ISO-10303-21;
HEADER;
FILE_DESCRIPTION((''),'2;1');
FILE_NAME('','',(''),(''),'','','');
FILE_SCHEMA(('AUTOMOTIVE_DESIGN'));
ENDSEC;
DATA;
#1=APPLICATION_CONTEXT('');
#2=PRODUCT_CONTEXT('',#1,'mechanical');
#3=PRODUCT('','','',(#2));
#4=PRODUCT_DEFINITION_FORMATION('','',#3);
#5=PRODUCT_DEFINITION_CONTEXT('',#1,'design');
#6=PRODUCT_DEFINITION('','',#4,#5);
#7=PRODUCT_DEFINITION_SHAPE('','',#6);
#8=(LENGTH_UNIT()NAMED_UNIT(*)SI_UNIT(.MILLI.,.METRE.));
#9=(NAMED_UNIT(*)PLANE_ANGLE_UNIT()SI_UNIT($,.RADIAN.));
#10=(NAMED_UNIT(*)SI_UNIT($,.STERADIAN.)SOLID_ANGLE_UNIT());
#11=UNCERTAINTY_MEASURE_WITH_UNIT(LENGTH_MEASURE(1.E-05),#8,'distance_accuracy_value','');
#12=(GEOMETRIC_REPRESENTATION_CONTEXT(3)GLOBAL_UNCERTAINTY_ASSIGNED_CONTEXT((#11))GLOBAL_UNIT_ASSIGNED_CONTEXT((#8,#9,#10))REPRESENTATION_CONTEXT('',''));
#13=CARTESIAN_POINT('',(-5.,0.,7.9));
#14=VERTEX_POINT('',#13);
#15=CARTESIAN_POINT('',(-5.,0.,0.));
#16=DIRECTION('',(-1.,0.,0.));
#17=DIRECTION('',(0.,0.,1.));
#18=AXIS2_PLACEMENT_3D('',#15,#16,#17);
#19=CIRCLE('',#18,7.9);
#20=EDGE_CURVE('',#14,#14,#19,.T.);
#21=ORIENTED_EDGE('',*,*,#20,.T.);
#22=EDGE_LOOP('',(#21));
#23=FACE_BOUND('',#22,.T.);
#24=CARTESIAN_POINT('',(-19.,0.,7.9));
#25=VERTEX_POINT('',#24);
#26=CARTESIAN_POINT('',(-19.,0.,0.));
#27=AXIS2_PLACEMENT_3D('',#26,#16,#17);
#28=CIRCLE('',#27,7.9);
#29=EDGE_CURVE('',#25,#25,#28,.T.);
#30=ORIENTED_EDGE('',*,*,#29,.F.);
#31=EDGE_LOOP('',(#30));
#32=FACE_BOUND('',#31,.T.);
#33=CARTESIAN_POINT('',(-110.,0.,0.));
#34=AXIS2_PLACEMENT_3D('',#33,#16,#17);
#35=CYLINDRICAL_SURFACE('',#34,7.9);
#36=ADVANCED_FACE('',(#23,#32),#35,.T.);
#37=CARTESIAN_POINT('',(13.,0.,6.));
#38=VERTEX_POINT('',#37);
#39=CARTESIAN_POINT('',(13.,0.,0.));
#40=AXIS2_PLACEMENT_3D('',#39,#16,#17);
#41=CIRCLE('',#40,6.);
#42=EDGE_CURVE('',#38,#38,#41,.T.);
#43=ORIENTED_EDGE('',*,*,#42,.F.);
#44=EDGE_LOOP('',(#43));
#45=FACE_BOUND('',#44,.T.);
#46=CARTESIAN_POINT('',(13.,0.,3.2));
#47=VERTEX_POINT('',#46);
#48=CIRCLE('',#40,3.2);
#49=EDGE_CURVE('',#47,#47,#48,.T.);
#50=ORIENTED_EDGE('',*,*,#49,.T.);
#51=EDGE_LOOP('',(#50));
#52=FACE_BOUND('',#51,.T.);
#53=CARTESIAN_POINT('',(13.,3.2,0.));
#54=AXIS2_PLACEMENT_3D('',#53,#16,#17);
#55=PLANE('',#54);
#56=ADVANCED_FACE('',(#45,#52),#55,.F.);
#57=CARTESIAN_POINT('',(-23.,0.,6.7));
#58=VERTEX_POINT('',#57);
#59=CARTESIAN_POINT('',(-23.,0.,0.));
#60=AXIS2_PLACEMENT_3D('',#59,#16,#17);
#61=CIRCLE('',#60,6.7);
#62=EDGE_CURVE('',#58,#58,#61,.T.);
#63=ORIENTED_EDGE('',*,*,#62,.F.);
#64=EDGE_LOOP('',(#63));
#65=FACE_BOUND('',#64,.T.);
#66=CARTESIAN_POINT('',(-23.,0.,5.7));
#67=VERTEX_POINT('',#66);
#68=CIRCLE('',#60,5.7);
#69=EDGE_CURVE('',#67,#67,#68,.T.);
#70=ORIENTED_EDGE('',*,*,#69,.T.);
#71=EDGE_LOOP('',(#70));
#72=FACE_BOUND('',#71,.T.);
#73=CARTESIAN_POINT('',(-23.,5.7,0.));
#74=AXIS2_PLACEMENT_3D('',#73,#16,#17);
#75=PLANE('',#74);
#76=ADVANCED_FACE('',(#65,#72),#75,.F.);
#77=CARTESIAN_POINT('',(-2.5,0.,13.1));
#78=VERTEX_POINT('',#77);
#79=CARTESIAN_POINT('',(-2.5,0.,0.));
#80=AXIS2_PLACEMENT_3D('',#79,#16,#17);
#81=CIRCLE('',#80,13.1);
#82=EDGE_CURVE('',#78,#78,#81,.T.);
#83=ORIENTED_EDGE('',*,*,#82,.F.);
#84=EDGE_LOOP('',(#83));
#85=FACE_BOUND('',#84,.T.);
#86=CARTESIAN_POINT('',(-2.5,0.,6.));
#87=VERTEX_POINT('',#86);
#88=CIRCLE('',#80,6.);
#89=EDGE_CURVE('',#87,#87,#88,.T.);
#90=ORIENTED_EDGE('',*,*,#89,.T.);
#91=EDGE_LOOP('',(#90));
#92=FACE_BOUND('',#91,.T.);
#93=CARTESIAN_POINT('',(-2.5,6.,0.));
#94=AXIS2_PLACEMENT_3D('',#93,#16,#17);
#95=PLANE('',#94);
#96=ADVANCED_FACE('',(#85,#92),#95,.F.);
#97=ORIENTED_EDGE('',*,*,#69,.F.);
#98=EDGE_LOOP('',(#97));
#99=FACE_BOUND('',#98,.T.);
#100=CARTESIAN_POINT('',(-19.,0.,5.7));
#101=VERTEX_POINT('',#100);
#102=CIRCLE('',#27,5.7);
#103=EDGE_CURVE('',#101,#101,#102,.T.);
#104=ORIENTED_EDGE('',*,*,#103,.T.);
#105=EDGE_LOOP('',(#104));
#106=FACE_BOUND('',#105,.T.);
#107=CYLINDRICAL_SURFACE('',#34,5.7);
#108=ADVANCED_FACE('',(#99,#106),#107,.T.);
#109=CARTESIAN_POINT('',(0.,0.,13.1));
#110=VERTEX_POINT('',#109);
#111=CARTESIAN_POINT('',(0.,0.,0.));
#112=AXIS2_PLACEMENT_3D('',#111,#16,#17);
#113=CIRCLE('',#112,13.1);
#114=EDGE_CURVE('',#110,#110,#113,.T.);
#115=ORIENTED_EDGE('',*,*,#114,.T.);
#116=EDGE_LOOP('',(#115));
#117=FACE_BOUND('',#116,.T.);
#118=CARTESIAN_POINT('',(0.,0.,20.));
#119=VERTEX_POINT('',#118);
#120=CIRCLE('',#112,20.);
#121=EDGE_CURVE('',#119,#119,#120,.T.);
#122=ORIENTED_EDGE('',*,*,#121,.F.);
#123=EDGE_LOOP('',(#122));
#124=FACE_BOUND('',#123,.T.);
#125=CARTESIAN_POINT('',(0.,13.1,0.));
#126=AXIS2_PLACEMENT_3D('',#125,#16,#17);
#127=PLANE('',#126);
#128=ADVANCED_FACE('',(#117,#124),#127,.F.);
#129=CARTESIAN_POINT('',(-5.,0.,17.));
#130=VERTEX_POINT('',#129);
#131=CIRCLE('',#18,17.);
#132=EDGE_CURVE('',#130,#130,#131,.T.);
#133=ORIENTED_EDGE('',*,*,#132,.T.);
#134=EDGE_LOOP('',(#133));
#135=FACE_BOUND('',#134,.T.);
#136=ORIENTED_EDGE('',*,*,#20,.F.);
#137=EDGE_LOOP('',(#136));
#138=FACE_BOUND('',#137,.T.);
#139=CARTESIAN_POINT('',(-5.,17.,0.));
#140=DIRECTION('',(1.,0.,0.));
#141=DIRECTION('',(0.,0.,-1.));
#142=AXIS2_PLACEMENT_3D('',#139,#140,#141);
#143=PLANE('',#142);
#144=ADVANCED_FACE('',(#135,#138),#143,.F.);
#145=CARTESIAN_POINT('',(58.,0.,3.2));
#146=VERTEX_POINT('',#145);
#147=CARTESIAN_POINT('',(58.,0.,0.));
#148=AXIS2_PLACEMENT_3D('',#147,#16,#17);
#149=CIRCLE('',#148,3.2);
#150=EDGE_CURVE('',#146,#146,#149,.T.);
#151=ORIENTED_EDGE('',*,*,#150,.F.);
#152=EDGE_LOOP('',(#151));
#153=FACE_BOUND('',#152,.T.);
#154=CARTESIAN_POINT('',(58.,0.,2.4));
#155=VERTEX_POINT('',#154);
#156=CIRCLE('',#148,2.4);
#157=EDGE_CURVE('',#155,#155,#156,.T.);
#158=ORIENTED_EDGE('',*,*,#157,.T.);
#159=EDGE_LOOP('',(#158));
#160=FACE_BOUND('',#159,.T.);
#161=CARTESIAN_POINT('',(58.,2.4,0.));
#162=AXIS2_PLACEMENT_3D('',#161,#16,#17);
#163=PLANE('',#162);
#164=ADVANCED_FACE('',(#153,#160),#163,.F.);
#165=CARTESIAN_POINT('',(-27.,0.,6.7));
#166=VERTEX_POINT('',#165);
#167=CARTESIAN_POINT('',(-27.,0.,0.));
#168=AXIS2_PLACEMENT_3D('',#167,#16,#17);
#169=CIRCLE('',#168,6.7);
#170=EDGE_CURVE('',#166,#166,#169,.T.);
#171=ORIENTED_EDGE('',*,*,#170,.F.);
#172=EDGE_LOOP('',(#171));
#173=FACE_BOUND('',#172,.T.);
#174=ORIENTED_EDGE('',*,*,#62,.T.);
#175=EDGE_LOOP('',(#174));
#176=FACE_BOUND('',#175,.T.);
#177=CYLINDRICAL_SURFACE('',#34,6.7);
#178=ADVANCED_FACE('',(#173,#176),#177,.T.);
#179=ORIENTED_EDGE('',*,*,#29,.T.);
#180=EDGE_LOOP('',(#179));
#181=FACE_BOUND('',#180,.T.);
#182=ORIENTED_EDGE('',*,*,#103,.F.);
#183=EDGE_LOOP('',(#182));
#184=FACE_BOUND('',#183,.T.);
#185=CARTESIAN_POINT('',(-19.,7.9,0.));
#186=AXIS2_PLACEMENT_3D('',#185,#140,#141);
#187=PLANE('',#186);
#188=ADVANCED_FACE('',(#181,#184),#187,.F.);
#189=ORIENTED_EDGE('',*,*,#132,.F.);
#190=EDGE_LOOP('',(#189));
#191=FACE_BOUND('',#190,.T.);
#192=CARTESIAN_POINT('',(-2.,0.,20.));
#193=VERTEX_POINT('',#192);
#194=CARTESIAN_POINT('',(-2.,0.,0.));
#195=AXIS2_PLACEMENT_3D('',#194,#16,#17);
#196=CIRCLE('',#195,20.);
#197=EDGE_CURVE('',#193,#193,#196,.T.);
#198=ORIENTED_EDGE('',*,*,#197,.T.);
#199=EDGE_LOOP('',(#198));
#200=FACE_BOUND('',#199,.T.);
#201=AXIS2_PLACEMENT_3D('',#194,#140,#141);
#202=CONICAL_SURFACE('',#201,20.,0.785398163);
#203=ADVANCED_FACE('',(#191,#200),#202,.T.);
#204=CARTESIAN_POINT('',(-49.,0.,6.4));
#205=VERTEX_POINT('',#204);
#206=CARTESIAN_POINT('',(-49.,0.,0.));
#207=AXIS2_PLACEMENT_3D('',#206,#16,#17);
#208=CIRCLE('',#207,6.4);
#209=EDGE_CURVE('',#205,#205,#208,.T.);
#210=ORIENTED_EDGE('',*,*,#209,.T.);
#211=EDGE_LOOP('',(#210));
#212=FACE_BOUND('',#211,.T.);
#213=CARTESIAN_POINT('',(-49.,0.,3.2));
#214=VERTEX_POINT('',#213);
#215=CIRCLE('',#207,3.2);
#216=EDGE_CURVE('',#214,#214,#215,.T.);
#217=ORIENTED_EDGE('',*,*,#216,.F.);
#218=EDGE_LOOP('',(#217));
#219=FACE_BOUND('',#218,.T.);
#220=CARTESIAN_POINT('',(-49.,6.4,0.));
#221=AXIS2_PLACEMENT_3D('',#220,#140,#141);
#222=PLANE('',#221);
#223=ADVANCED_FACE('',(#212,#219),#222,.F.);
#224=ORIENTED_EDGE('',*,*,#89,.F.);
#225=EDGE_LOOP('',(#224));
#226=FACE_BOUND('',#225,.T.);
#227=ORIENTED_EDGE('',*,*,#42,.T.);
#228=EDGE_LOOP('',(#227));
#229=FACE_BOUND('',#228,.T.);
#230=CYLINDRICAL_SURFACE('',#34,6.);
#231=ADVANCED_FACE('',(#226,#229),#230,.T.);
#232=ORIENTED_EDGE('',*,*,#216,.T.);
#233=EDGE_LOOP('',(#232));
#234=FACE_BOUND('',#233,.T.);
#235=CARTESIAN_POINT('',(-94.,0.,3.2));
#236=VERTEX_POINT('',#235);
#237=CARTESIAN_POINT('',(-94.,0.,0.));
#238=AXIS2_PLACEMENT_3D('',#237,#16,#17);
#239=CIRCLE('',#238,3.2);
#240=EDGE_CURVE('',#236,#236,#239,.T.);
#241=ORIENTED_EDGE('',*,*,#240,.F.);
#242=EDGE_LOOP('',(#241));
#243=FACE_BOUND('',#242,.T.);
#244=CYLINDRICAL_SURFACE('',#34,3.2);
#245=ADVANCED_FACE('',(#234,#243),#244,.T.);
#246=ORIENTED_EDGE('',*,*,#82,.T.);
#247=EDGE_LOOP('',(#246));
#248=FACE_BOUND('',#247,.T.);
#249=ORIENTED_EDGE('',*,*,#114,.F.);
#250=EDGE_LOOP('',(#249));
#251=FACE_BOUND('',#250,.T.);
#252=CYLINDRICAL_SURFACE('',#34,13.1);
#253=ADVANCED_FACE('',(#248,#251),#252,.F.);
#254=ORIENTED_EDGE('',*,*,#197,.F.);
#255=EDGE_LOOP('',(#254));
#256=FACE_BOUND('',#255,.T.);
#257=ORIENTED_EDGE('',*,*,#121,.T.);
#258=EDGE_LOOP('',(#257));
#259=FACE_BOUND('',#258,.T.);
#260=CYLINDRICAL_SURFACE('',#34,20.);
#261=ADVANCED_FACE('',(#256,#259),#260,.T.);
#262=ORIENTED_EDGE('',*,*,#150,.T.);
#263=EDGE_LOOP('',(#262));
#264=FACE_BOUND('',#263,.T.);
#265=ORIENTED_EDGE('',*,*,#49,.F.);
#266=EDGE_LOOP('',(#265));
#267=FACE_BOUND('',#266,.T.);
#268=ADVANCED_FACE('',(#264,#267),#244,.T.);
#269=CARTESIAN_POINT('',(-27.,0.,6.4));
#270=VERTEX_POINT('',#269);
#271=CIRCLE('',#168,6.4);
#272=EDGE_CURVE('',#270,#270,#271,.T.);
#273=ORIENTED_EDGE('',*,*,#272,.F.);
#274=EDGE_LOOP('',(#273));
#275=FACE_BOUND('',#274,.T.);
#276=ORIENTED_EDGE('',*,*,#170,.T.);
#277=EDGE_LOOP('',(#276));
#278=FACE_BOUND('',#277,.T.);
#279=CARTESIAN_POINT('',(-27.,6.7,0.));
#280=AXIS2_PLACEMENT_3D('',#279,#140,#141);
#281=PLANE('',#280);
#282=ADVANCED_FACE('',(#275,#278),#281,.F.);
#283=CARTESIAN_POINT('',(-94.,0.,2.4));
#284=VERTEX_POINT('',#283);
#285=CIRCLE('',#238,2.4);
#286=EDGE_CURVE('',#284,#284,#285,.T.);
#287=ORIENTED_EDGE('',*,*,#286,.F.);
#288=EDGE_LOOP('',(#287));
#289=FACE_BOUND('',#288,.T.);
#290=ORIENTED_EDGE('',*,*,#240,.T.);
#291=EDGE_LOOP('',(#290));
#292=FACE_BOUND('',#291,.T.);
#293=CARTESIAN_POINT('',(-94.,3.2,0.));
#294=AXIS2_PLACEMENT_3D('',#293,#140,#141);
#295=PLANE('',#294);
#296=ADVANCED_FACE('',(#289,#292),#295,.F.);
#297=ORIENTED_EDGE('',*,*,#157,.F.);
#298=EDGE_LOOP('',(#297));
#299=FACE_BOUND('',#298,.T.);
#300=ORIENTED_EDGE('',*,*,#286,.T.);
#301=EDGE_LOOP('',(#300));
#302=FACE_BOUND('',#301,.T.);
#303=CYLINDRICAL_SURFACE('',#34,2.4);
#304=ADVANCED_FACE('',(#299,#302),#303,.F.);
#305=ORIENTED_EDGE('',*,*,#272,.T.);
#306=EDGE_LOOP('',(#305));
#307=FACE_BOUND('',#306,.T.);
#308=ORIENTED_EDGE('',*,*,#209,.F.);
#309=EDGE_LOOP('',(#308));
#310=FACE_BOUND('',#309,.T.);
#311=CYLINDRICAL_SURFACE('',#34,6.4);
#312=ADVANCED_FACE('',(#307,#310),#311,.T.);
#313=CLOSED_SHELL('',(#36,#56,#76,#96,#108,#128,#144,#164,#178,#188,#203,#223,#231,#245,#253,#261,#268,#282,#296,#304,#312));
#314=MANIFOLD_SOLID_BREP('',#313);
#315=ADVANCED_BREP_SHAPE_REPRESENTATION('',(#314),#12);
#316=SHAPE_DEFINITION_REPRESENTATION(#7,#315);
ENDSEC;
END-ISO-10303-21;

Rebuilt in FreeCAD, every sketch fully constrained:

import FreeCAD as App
import Part
import Sketcher
from FreeCAD import Vector
Q = App.Units.Quantity

doc = App.newDocument("Part")
body = doc.addObject("PartDesign::Body", "Body")

sketch1 = body.newObject("Sketcher::SketchObject", "Sketch")
sketch1.AttachmentSupport = (doc.getObject("XY_Plane"), [""])
sketch1.MapMode = "FlatFace"
sketch1.addGeometry([
    Part.LineSegment(Vector(-94, 2.4, 0), Vector(58, 2.4, 0)),
    Part.LineSegment(Vector(58, 2.4, 0), Vector(58, 3.2, 0)),
    Part.LineSegment(Vector(58, 3.2, 0), Vector(13, 3.2, 0)),
    Part.LineSegment(Vector(13, 3.2, 0), Vector(13, 6, 0)),
    Part.LineSegment(Vector(13, 6, 0), Vector(-2.5, 6, 0)),
    Part.LineSegment(Vector(-2.5, 6, 0), Vector(-2.5, 13.1, 0)),
    Part.LineSegment(Vector(-2.5, 13.1, 0), Vector(0, 13.1, 0)),
    Part.LineSegment(Vector(0, 13.1, 0), Vector(0, 20, 0)),
    Part.LineSegment(Vector(0, 20, 0), Vector(-2, 20, 0)),
    Part.LineSegment(Vector(-2, 20, 0), Vector(-5, 17, 0)),
    Part.LineSegment(Vector(-5, 17, 0), Vector(-5, 7.9, 0)),
    Part.LineSegment(Vector(-5, 7.9, 0), Vector(-19, 7.9, 0)),
    Part.LineSegment(Vector(-19, 7.9, 0), Vector(-19, 5.7, 0)),
    Part.LineSegment(Vector(-19, 5.7, 0), Vector(-23, 5.7, 0)),
    Part.LineSegment(Vector(-23, 5.7, 0), Vector(-23, 6.7, 0)),
    Part.LineSegment(Vector(-23, 6.7, 0), Vector(-27, 6.7, 0)),
    Part.LineSegment(Vector(-27, 6.7, 0), Vector(-27, 6.4, 0)),
    Part.LineSegment(Vector(-27, 6.4, 0), Vector(-49, 6.4, 0)),
    Part.LineSegment(Vector(-49, 6.4, 0), Vector(-49, 3.2, 0)),
    Part.LineSegment(Vector(-49, 3.2, 0), Vector(-94, 3.2, 0)),
    Part.LineSegment(Vector(-94, 3.2, 0), Vector(-94, 2.4, 0)),
], False)
sketch1.addConstraint([
    Sketcher.Constraint("Coincident", 0, 2, 1, 1),
    Sketcher.Constraint("Coincident", 1, 2, 2, 1),
    Sketcher.Constraint("Coincident", 2, 2, 3, 1),
    Sketcher.Constraint("Coincident", 3, 2, 4, 1),
    Sketcher.Constraint("Coincident", 4, 2, 5, 1),
    Sketcher.Constraint("Coincident", 5, 2, 6, 1),
    Sketcher.Constraint("Coincident", 6, 2, 7, 1),
    Sketcher.Constraint("Coincident", 7, 2, 8, 1),
    Sketcher.Constraint("Coincident", 8, 2, 9, 1),
    Sketcher.Constraint("Coincident", 9, 2, 10, 1),
    Sketcher.Constraint("Coincident", 10, 2, 11, 1),
    Sketcher.Constraint("Coincident", 11, 2, 12, 1),
    Sketcher.Constraint("Coincident", 12, 2, 13, 1),
    Sketcher.Constraint("Coincident", 13, 2, 14, 1),
    Sketcher.Constraint("Coincident", 14, 2, 15, 1),
    Sketcher.Constraint("Coincident", 15, 2, 16, 1),
    Sketcher.Constraint("Coincident", 16, 2, 17, 1),
    Sketcher.Constraint("Coincident", 17, 2, 18, 1),
    Sketcher.Constraint("Coincident", 18, 2, 19, 1),
    Sketcher.Constraint("Coincident", 19, 2, 20, 1),
    Sketcher.Constraint("Coincident", 20, 2, 0, 1),
    Sketcher.Constraint("Horizontal", 0),
    Sketcher.Constraint("Vertical", 1),
    Sketcher.Constraint("Horizontal", 2),
    Sketcher.Constraint("Vertical", 3),
    Sketcher.Constraint("Horizontal", 4),
    Sketcher.Constraint("Vertical", 5),
    Sketcher.Constraint("Horizontal", 6),
    Sketcher.Constraint("Vertical", 7),
    Sketcher.Constraint("Horizontal", 8),
    Sketcher.Constraint("Vertical", 10),
    Sketcher.Constraint("Horizontal", 11),
    Sketcher.Constraint("Vertical", 12),
    Sketcher.Constraint("Horizontal", 13),
    Sketcher.Constraint("Vertical", 14),
    Sketcher.Constraint("Horizontal", 15),
    Sketcher.Constraint("Vertical", 16),
    Sketcher.Constraint("Horizontal", 17),
    Sketcher.Constraint("Vertical", 18),
    Sketcher.Constraint("Horizontal", 19),
    Sketcher.Constraint("Vertical", 20),
    Sketcher.Constraint("PointOnObject", 6, 2, -2),
    Sketcher.Constraint("Horizontal", 2, 2, 18, 2),
    Sketcher.Constraint("Equal", 13, 15),
    Sketcher.Constraint("Equal", 2, 19),
    Sketcher.Constraint("DistanceX", 0, 1, 0, 2, 152.0),
    Sketcher.Constraint("DistanceX", 2, 2, 2, 1, 45.0),
    Sketcher.Constraint("DistanceX", 8, 2, 8, 1, 2.0),
    Sketcher.Constraint("DistanceX", 11, 2, 11, 1, 14.0),
    Sketcher.Constraint("DistanceX", 13, 2, 13, 1, 4.0),
    Sketcher.Constraint("DistanceX", 17, 2, 17, 1, 22.0),
    Sketcher.Constraint("DistanceY", 14, 1, 14, 2, 1.0),
    Sketcher.Constraint("Angle", 9, Q("-135 deg")),
    Sketcher.Constraint("DistanceX", 4, 2, 4, 1, 15.5),
    Sketcher.Constraint("DistanceX", 6, 1, 6, 2, 2.5),
    Sketcher.Constraint("DistanceY", 1, 1, 1, 2, 0.8),
    Sketcher.Constraint("DistanceY", 3, 1, 3, 2, 2.8),
    Sketcher.Constraint("DistanceY", 5, 1, 5, 2, 7.1),
    Sketcher.Constraint("DistanceY", 7, 1, 7, 2, 6.9),
    Sketcher.Constraint("DistanceY", 10, 2, 10, 1, 9.1),
    Sketcher.Constraint("DistanceY", 12, 2, 12, 1, 2.2),
    Sketcher.Constraint("DistanceY", 16, 2, 16, 1, 0.3),
    Sketcher.Constraint("DistanceY", -1, 1, 3, 2, 6.0),
])
revolution = body.newObject("PartDesign::Revolution", "Revolution")
revolution.Profile = sketch1
revolution.ReferenceAxis = (sketch1, ["H_Axis"])
revolution.Angle = 360

doc.recompute()
